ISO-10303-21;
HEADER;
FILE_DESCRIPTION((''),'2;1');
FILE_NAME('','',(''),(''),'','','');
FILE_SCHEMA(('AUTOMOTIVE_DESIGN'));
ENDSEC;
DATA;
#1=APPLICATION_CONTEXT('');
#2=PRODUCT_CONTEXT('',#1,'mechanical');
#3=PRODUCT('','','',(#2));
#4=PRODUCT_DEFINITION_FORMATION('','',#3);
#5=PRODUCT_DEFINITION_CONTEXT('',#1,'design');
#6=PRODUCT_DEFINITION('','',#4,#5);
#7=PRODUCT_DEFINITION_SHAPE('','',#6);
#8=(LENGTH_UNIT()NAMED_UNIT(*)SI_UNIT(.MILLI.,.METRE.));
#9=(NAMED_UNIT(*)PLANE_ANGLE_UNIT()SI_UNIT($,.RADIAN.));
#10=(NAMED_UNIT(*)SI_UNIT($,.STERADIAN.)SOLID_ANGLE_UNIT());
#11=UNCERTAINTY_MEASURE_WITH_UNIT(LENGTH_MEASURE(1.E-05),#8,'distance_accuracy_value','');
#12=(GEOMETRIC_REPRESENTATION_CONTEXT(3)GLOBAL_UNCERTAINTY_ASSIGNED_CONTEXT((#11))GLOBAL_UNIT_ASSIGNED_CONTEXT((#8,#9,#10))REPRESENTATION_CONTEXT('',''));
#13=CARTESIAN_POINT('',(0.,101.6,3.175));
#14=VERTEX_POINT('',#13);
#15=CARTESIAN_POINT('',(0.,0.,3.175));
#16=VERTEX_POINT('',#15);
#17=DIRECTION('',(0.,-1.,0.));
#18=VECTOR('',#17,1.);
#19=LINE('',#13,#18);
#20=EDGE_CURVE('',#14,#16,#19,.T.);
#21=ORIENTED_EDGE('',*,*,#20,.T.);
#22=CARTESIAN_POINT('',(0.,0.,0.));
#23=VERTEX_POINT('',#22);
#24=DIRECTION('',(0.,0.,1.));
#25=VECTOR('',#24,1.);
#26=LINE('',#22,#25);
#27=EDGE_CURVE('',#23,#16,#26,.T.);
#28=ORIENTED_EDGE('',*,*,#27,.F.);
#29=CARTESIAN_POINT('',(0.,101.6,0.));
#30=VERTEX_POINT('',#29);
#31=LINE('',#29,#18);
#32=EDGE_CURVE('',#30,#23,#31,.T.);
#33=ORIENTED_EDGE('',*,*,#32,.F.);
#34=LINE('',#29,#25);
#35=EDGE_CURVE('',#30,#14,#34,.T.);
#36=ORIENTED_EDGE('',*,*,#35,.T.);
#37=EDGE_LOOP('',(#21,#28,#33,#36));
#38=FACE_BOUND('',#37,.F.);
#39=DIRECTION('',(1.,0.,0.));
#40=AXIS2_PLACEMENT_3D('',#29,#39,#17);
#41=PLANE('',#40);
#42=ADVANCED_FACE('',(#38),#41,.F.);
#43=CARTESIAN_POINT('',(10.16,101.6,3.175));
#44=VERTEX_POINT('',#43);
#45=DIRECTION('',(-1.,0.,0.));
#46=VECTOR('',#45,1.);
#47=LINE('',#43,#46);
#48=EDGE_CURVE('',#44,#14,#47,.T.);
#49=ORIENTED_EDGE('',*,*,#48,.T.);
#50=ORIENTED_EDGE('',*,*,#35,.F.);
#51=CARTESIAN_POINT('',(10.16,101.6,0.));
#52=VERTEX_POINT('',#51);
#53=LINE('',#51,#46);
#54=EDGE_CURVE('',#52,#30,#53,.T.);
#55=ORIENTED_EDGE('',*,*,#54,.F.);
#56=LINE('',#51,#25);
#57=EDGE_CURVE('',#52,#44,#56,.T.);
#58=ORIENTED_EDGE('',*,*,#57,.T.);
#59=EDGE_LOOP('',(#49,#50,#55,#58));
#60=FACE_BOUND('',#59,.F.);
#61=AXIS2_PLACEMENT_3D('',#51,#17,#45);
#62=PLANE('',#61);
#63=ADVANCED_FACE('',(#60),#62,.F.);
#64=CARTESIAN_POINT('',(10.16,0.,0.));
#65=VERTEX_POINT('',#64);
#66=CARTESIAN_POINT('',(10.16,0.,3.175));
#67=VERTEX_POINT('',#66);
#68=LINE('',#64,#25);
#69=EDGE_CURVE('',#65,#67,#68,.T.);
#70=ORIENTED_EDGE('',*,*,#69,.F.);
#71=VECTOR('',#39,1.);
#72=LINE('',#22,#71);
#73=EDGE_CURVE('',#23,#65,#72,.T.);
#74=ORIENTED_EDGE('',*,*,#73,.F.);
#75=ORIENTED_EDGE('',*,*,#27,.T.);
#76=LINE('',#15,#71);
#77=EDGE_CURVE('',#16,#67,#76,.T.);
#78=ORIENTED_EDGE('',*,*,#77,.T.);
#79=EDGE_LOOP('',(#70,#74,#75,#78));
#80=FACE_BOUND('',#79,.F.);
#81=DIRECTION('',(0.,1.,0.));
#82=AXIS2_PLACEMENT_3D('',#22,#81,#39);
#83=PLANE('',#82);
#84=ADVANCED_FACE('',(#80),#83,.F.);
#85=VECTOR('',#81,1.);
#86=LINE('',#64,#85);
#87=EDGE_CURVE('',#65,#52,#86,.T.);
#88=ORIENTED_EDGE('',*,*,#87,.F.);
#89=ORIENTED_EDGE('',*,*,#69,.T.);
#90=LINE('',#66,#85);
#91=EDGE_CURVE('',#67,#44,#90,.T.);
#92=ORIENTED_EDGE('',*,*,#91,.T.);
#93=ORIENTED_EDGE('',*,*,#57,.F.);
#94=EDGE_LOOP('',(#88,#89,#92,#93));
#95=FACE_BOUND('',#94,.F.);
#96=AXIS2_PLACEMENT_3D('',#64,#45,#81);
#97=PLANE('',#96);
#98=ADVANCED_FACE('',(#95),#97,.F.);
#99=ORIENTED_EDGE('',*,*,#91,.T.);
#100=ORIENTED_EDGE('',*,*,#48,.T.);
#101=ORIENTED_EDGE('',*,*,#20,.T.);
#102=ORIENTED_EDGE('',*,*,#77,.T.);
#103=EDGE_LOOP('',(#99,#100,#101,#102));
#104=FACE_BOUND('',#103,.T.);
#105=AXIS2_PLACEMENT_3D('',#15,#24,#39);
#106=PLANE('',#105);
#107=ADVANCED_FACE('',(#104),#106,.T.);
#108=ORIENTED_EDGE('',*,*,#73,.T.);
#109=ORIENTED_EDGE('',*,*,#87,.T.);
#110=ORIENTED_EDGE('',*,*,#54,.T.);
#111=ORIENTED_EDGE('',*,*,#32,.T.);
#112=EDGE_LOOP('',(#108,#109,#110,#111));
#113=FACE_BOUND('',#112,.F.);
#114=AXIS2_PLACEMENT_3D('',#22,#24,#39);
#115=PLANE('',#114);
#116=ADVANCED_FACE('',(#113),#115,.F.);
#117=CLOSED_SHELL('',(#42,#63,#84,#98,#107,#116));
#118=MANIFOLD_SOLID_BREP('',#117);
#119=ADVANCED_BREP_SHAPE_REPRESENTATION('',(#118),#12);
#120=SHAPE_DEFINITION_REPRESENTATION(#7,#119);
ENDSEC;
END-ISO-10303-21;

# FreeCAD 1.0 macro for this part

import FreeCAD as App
import Part
import Sketcher
Q = App.Units.Quantity


def add_polygon(sketch, points):
    """Adds a closed chain of lines whose ends are joined by coincident constraints."""
    first, n = sketch.GeometryCount, len(points)
    for a, b in zip(points, points[1:] + points[:1]):
        sketch.addGeometry(Part.LineSegment(App.Vector(*a, 0), App.Vector(*b, 0)), False)
    for i in range(n):
        sketch.addConstraint(Sketcher.Constraint("Coincident", first + i, 2, first + (i + 1) % n, 1))

doc = App.newDocument("Part")
body = doc.addObject("PartDesign::Body", "Body")

# Sketch on XY plane
sketch1 = body.newObject("Sketcher::SketchObject", "Sketch")
sketch1.AttachmentSupport = (doc.getObject("XY_Plane"), [""])
sketch1.MapMode = "FlatFace"
add_polygon(sketch1, [(0, 102), (0, 0), (10, 0), (10, 102)])  # lines 0-3
sketch1.addConstraint(Sketcher.Constraint("Vertical", 0))
sketch1.addConstraint(Sketcher.Constraint("Horizontal", 1))
sketch1.addConstraint(Sketcher.Constraint("Vertical", 2))
sketch1.addConstraint(Sketcher.Constraint("Horizontal", 3))
sketch1.addConstraint(Sketcher.Constraint("Coincident", 0, 2, -1, 1))
sketch1.addConstraint(Sketcher.Constraint("DistanceY", 0, 2, 0, 1, Q("4 in")))
sketch1.addConstraint(Sketcher.Constraint("DistanceX", 1, 1, 1, 2, Q("0.4 in")))
pad1 = body.newObject("PartDesign::Pad", "Pad")
pad1.Profile = sketch1
pad1.Length = Q("0.125 in")

doc.recompute()
